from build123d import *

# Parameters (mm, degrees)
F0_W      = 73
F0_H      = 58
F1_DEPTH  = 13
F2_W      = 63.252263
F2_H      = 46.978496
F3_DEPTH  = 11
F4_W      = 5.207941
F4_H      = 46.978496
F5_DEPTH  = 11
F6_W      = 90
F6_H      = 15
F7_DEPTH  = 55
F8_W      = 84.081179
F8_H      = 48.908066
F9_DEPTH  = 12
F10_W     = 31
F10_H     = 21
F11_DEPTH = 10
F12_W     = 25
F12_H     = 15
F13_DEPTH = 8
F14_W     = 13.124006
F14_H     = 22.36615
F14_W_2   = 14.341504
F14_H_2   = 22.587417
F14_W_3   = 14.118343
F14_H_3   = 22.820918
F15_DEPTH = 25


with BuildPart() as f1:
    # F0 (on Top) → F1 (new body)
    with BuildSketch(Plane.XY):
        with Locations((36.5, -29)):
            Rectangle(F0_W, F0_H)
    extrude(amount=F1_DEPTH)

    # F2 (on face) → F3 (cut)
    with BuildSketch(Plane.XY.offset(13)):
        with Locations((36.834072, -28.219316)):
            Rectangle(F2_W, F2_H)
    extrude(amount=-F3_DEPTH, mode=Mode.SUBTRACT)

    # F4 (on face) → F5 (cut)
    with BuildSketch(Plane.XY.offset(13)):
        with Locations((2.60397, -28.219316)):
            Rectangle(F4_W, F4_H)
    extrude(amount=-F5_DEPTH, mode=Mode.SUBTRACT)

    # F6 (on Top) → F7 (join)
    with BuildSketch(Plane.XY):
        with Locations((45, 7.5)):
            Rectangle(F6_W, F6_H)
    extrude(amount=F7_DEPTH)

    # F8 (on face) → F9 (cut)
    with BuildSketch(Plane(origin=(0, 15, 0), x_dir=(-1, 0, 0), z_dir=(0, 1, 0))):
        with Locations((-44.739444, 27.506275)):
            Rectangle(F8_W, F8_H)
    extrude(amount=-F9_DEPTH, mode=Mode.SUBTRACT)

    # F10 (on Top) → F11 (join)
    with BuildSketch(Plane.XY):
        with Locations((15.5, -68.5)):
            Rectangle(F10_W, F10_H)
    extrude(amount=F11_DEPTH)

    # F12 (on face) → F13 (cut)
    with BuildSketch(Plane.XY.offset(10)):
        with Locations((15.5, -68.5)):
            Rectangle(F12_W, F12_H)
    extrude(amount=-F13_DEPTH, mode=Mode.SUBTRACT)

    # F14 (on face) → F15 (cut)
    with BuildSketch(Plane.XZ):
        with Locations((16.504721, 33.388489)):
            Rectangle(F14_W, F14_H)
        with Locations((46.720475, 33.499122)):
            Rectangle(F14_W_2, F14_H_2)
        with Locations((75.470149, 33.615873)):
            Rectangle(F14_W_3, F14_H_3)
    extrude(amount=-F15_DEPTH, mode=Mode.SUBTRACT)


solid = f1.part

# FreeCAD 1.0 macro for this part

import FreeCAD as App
import Part
import Sketcher
from FreeCAD import Vector
Q = App.Units.Quantity


def add_polygon(sketch, points):
    """Adds a closed chain of lines whose ends are joined by coincident constraints."""
    first, n = sketch.GeometryCount, len(points)
    for a, b in zip(points, points[1:] + points[:1]):
        sketch.addGeometry(Part.LineSegment(App.Vector(*a, 0), App.Vector(*b, 0)), False)
    for i in range(n):
        sketch.addConstraint(Sketcher.Constraint("Coincident", first + i, 2, first + (i + 1) % n, 1))

doc = App.newDocument("Part")
params = doc.addObject("Spreadsheet::Sheet", "Params")
for row, (alias, value) in enumerate([
    ("sketch1_width", "73 mm"),
    ("sketch1_height", "58 mm"),
    ("pad1_length", "13 mm"),
    ("pocket1_length", "11 mm"),
    ("pocket2_length", "11 mm"),
    ("sketch4_width", "90 mm"),
    ("sketch4_height", "15 mm"),
    ("pad2_length", "55 mm"),
    ("pocket3_length", "12 mm"),
    ("sketch6_width", "31 mm"),
    ("sketch6_height", "21 mm"),
    ("pad3_length", "10 mm"),
    ("sketch7_width", "25 mm"),
    ("sketch7_height", "15 mm"),
    ("pocket4_length", "8 mm"),
    ("pocket5_length", "25 mm"),
], start=1):
    params.set(f"A{row}", alias)
    params.set(f"B{row}", "=" + value)
    params.setAlias(f"B{row}", alias)

body = doc.addObject("PartDesign::Body", "Body")

# Sketch on XY plane
sketch1 = body.newObject("Sketcher::SketchObject", "Sketch")
sketch1.AttachmentSupport = (doc.getObject("XY_Plane"), [""])
sketch1.MapMode = "FlatFace"
add_polygon(sketch1, [(0, 0), (0, -58), (73, -58), (73, 0)])  # lines 0-3
sketch1.addConstraint([
    Sketcher.Constraint("Vertical", 0),
    Sketcher.Constraint("Horizontal", 1),
    Sketcher.Constraint("Vertical", 2),
    Sketcher.Constraint("Horizontal", 3),
    Sketcher.Constraint("Coincident", 3, 2, -1, 1),
    Sketcher.Constraint("DistanceX", 1, 1, 1, 2, Q("73 mm")),
    Sketcher.Constraint("DistanceY", 0, 2, 0, 1, Q("58 mm")),
])
sketch1.setExpression("Constraints[9]", "Params.sketch1_width")
sketch1.setExpression("Constraints[10]", "Params.sketch1_height")
pad1 = body.newObject("PartDesign::Pad", "Pad")
pad1.Profile = sketch1
pad1.setExpression("Length", "Params.pad1_length")

# Sketch on XY plane
sketch2 = body.newObject("Sketcher::SketchObject", "Sketch001")
sketch2.AttachmentSupport = (doc.getObject("XY_Plane"), [""])
sketch2.MapMode = "FlatFace"
sketch2.AttachmentOffset = App.Placement(Vector(0, 0, 13), App.Rotation())
add_polygon(sketch2, [(5, -5), (5, -52), (68, -52), (68, -5)])  # lines 0-3
sketch2.addConstraint([
    Sketcher.Constraint("Vertical", 0),
    Sketcher.Constraint("Horizontal", 1),
    Sketcher.Constraint("Vertical", 2),
    Sketcher.Constraint("Horizontal", 3),
    Sketcher.Constraint("DistanceX", 1, 1, 1, 2, Q("63.252263 mm")),
    Sketcher.Constraint("DistanceY", 0, 2, 0, 1, Q("46.978496 mm")),
    Sketcher.Constraint("DistanceX", -1, 1, 0, 2, Q("5.207941 mm")),
    Sketcher.Constraint("DistanceY", 0, 2, -1, 1, Q("51.708564 mm")),
])
pocket1 = body.newObject("PartDesign::Pocket", "Pocket")
pocket1.Profile = sketch2
pocket1.setExpression("Length", "Params.pocket1_length")

# Sketch on XY plane
sketch3 = body.newObject("Sketcher::SketchObject", "Sketch002")
sketch3.AttachmentSupport = (doc.getObject("XY_Plane"), [""])
sketch3.MapMode = "FlatFace"
sketch3.AttachmentOffset = App.Placement(Vector(0, 0, 13), App.Rotation())
add_polygon(sketch3, [(0, -5), (0, -52), (5, -52), (5, -5)])  # lines 0-3
sketch3.addConstraint([
    Sketcher.Constraint("Vertical", 0),
    Sketcher.Constraint("Horizontal", 1),
    Sketcher.Constraint("Vertical", 2),
    Sketcher.Constraint("Horizontal", 3),
    Sketcher.Constraint("PointOnObject", 0, 2, -2),
    Sketcher.Constraint("DistanceX", 1, 1, 1, 2, Q("5.207941 mm")),
    Sketcher.Constraint("DistanceY", 0, 2, 0, 1, Q("46.978496 mm")),
    Sketcher.Constraint("DistanceY", 0, 2, -1, 1, Q("51.708564 mm")),
])
pocket2 = body.newObject("PartDesign::Pocket", "Pocket001")
pocket2.Profile = sketch3
pocket2.setExpression("Length", "Params.pocket2_length")

# Sketch on XY plane
sketch4 = body.newObject("Sketcher::SketchObject", "Sketch003")
sketch4.AttachmentSupport = (doc.getObject("XY_Plane"), [""])
sketch4.MapMode = "FlatFace"
add_polygon(sketch4, [(0, 15), (0, 0), (90, 0), (90, 15)])  # lines 0-3
sketch4.addConstraint([
    Sketcher.Constraint("Vertical", 0),
    Sketcher.Constraint("Horizontal", 1),
    Sketcher.Constraint("Vertical", 2),
    Sketcher.Constraint("Horizontal", 3),
    Sketcher.Constraint("Coincident", 0, 2, -1, 1),
    Sketcher.Constraint("DistanceX", 1, 1, 1, 2, Q("90 mm")),
    Sketcher.Constraint("DistanceY", 0, 2, 0, 1, Q("15 mm")),
])
sketch4.setExpression("Constraints[9]", "Params.sketch4_width")
sketch4.setExpression("Constraints[10]", "Params.sketch4_height")
pad2 = body.newObject("PartDesign::Pad", "Pad001")
pad2.Profile = sketch4
pad2.setExpression("Length", "Params.pad2_length")

# Sketch on XZ plane
sketch5 = body.newObject("Sketcher::SketchObject", "Sketch004")
sketch5.AttachmentSupport = (doc.getObject("XZ_Plane"), [""])
sketch5.MapMode = "FlatFace"
sketch5.AttachmentOffset = App.Placement(Vector(0, 0, -15), App.Rotation())
add_polygon(sketch5, [(87, 52), (87, 3), (3, 3), (3, 52)])  # lines 0-3
sketch5.addConstraint([
    Sketcher.Constraint("Vertical", 0),
    Sketcher.Constraint("Horizontal", 1),
    Sketcher.Constraint("Vertical", 2),
    Sketcher.Constraint("Horizontal", 3),
    Sketcher.Constraint("DistanceX", 1, 2, 1, 1, Q("84.081179 mm")),
    Sketcher.Constraint("DistanceY", 0, 2, 0, 1, Q("48.908066 mm")),
    Sketcher.Constraint("DistanceX", -1, 1, 0, 2, Q("86.780034 mm")),
    Sketcher.Constraint("DistanceY", -1, 1, 0, 2, Q("3.052242 mm")),
])
pocket3 = body.newObject("PartDesign::Pocket", "Pocket002")
pocket3.Profile = sketch5
pocket3.setExpression("Length", "Params.pocket3_length")
pocket3.Reversed = True

# Sketch on XY plane
sketch6 = body.newObject("Sketcher::SketchObject", "Sketch005")
sketch6.AttachmentSupport = (doc.getObject("XY_Plane"), [""])
sketch6.MapMode = "FlatFace"
add_polygon(sketch6, [(0, -58), (0, -79), (31, -79), (31, -58)])  # lines 0-3
sketch6.addConstraint([
    Sketcher.Constraint("Vertical", 0),
    Sketcher.Constraint("Horizontal", 1),
    Sketcher.Constraint("Vertical", 2),
    Sketcher.Constraint("Horizontal", 3),
    Sketcher.Constraint("PointOnObject", 0, 2, -2),
    Sketcher.Constraint("DistanceX", 1, 1, 1, 2, Q("31 mm")),
    Sketcher.Constraint("DistanceY", 0, 2, 0, 1, Q("21 mm")),
    Sketcher.Constraint("DistanceY", 0, 2, -1, 1, Q("79 mm")),
])
sketch6.setExpression("Constraints[9]", "Params.sketch6_width")
sketch6.setExpression("Constraints[10]", "Params.sketch6_height")
pad3 = body.newObject("PartDesign::Pad", "Pad002")
pad3.Profile = sketch6
pad3.setExpression("Length", "Params.pad3_length")

# Sketch on XY plane
sketch7 = body.newObject("Sketcher::SketchObject", "Sketch006")
sketch7.AttachmentSupport = (doc.getObject("XY_Plane"), [""])
sketch7.MapMode = "FlatFace"
sketch7.AttachmentOffset = App.Placement(Vector(0, 0, 10), App.Rotation())
add_polygon(sketch7, [(3, -61), (3, -76), (28, -76), (28, -61)])  # lines 0-3
sketch7.addConstraint([
    Sketcher.Constraint("Vertical", 0),
    Sketcher.Constraint("Horizontal", 1),
    Sketcher.Constraint("Vertical", 2),
    Sketcher.Constraint("Horizontal", 3),
    Sketcher.Constraint("DistanceX", 1, 1, 1, 2, Q("25 mm")),
    Sketcher.Constraint("DistanceY", 0, 2, 0, 1, Q("15 mm")),
    Sketcher.Constraint("DistanceX", -1, 1, 0, 2, Q("3 mm")),
    Sketcher.Constraint("DistanceY", 0, 2, -1, 1, Q("76 mm")),
])
sketch7.setExpression("Constraints[8]", "Params.sketch7_width")
sketch7.setExpression("Constraints[9]", "Params.sketch7_height")
pocket4 = body.newObject("PartDesign::Pocket", "Pocket003")
pocket4.Profile = sketch7
pocket4.setExpression("Length", "Params.pocket4_length")

# Sketch on XZ plane
sketch8 = body.newObject("Sketcher::SketchObject", "Sketch007")
sketch8.AttachmentSupport = (doc.getObject("XZ_Plane"), [""])
sketch8.MapMode = "FlatFace"
add_polygon(sketch8, [(10, 45), (10, 22), (23, 22), (23, 45)])  # lines 0-3
add_polygon(sketch8, [(40, 45), (40, 22), (54, 22), (54, 45)])  # lines 4-7
add_polygon(sketch8, [(68, 45), (68, 22), (83, 22), (83, 45)])  # lines 8-11
sketch8.addConstraint([
    Sketcher.Constraint("Vertical", 0),
    Sketcher.Constraint("Horizontal", 1),
    Sketcher.Constraint("Vertical", 2),
    Sketcher.Constraint("Horizontal", 3),
    Sketcher.Constraint("Vertical", 4),
    Sketcher.Constraint("Horizontal", 5),
    Sketcher.Constraint("Vertical", 6),
    Sketcher.Constraint("Horizontal", 7),
    Sketcher.Constraint("Vertical", 8),
    Sketcher.Constraint("Horizontal", 9),
    Sketcher.Constraint("Vertical", 10),
    Sketcher.Constraint("Horizontal", 11),
    Sketcher.Constraint("Horizontal", 1, 2, 4, 2),
    Sketcher.Constraint("Horizontal", 5, 2, 8, 2),
    Sketcher.Constraint("DistanceX", 1, 2, 4, 2, Q("16.482999 mm")),
    Sketcher.Constraint("DistanceY", 0, 2, 0, 1, Q("22.36615 mm")),
    Sketcher.Constraint("DistanceY", 6, 2, 10, 2, Q("0.233501 mm")),
    Sketcher.Constraint("DistanceX", 1, 1, 1, 2, Q("13.124006 mm")),
    Sketcher.Constraint("DistanceX", 5, 1, 5, 2, Q("14.341504 mm")),
    Sketcher.Constraint("DistanceX", 9, 1, 9, 2, Q("14.118343 mm")),
    Sketcher.Constraint("DistanceY", 4, 2, 4, 1, Q("22.587417 mm")),
    Sketcher.Constraint("DistanceY", -1, 1, 6, 2, Q("44.792831 mm")),
    Sketcher.Constraint("DistanceX", -1, 1, 9, 2, Q("82.52932 mm")),
    Sketcher.Constraint("DistanceX", 5, 2, 8, 2, Q("14.519751 mm")),
])
pocket5 = body.newObject("PartDesign::Pocket", "Pocket004")
pocket5.Profile = sketch8
pocket5.setExpression("Length", "Params.pocket5_length")

doc.recompute()
